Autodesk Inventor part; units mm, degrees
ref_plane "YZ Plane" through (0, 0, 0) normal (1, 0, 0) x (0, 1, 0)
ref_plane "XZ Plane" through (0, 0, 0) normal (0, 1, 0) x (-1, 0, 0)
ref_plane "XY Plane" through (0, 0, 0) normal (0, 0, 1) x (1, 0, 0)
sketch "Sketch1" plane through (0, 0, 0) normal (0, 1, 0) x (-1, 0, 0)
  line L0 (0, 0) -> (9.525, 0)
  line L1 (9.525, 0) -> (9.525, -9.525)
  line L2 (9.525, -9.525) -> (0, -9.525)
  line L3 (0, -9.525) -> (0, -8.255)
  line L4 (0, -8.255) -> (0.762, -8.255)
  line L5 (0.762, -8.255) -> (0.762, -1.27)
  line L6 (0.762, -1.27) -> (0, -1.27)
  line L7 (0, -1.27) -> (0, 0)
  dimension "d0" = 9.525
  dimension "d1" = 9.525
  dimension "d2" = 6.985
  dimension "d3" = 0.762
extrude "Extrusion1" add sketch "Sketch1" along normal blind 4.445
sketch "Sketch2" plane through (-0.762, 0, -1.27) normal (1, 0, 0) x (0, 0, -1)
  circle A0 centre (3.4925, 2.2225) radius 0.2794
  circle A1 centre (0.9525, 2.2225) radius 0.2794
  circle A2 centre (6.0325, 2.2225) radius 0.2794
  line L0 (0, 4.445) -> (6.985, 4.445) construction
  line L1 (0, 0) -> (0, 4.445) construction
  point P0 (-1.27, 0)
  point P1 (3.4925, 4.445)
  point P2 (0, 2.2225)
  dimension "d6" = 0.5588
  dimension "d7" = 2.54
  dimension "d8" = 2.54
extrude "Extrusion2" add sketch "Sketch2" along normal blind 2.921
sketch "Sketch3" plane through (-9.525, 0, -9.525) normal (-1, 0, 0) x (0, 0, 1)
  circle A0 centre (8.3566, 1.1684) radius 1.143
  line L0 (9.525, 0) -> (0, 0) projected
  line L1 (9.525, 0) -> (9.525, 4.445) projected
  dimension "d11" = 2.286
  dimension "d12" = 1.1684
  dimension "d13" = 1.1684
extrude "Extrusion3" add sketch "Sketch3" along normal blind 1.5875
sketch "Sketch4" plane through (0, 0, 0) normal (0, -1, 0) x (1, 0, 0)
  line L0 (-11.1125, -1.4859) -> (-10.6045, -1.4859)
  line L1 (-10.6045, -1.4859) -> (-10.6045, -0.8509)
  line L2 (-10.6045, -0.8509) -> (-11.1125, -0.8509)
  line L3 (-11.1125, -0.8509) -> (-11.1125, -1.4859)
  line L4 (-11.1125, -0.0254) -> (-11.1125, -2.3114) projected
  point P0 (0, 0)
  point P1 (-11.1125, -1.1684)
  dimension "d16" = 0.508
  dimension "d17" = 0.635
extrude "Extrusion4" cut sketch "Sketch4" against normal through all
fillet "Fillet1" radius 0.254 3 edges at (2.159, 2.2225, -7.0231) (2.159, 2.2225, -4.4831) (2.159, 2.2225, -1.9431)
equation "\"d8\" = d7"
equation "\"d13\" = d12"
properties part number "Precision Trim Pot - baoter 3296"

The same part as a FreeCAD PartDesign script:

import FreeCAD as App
import Part
import Sketcher
Q = App.Units.Quantity


def edges_at(feature, points):
    """Names of the edges that pass closest to the given points."""
    edges = feature.Shape.Edges
    near = lambda p: min(range(len(edges)), key=lambda i: edges[i].distToShape(Part.Vertex(*p))[0])
    return sorted({f"Edge{near(p) + 1}" for p in points})


def add_polygon(sketch, points):
    """Adds a closed chain of lines whose ends are joined by coincident constraints."""
    first, n = sketch.GeometryCount, len(points)
    for a, b in zip(points, points[1:] + points[:1]):
        sketch.addGeometry(Part.LineSegment(App.Vector(*a, 0), App.Vector(*b, 0)), False)
    for i in range(n):
        sketch.addConstraint(Sketcher.Constraint("Coincident", first + i, 2, first + (i + 1) % n, 1))

doc = App.newDocument("Part")
body = doc.addObject("PartDesign::Body", "Body")

sketch1 = doc.addObject("Sketcher::SketchObject", "Sketch")
body.addObject(sketch1)
sketch1.AttachmentSupport = (doc.XZ_Plane, [""])
sketch1.MapMode = "FlatFace"
add_polygon(sketch1, [(-9.525, 0), (0, 0), (0, -1.27), (-0.762, -1.27), (-0.762, -8.255), (0, -8.255), (0, -9.525), (-9.525, -9.525)])
sketch1.addConstraint(Sketcher.Constraint("Horizontal", 0))
sketch1.addConstraint(Sketcher.Constraint("Vertical", 1))
sketch1.addConstraint(Sketcher.Constraint("Horizontal", 2))
sketch1.addConstraint(Sketcher.Constraint("Vertical", 3))
sketch1.addConstraint(Sketcher.Constraint("Horizontal", 4))
sketch1.addConstraint(Sketcher.Constraint("Vertical", 5))
sketch1.addConstraint(Sketcher.Constraint("Horizontal", 6))
sketch1.addConstraint(Sketcher.Constraint("Vertical", 7))
sketch1.addConstraint(Sketcher.Constraint("Coincident", 0, 2, -1, 1))
sketch1.addConstraint(Sketcher.Constraint("PointOnObject", 4, 2, -2))
sketch1.addConstraint(Sketcher.Constraint("Equal", 1, 5))
sketch1.addConstraint(Sketcher.Constraint("Equal", 6, 7))
sketch1.addConstraint(Sketcher.Constraint("DistanceX", 2, 2, 2, 1, Q("0.03 in")))
sketch1.addConstraint(Sketcher.Constraint("DistanceX", 0, 1, 0, 2, Q("0.375 in")))
sketch1.addConstraint(Sketcher.Constraint("DistanceY", 3, 2, 3, 1, Q("0.275 in")))
pad1 = doc.addObject("PartDesign::Pad", "Pad")
body.addObject(pad1)
pad1.Profile = sketch1
pad1.Length = Q("0.175 in")
pad1.Reversed = True

sketch2 = doc.addObject("Sketcher::SketchObject", "Sketch001")
body.addObject(sketch2)
sketch2.AttachmentSupport = (doc.YZ_Plane, [""])
sketch2.MapMode = "FlatFace"
sketch2.AttachmentOffset = App.Placement(App.Vector(0, 0, -0.03 * 25.4), App.Rotation())
sketch2.addGeometry(Part.Circle(App.Vector(2.2225, -4.7625, 0), App.Vector(0, 0, 1), 0.2794), False)
sketch2.addGeometry(Part.Circle(App.Vector(2.2225, -2.2225, 0), App.Vector(0, 0, 1), 0.2794), False)
sketch2.addGeometry(Part.Circle(App.Vector(2.2225, -7.3025, 0), App.Vector(0, 0, 1), 0.2794), False)
sketch2.addConstraint(Sketcher.Constraint("Equal", 0, 1))
sketch2.addConstraint(Sketcher.Constraint("Equal", 1, 2))
sketch2.addConstraint(Sketcher.Constraint("Vertical", 0, 3, 1, 3))
sketch2.addConstraint(Sketcher.Constraint("Vertical", 1, 3, 2, 3))
sketch2.addConstraint(Sketcher.Constraint("Diameter", 0, Q("0.022 in")))
sketch2.addConstraint(Sketcher.Constraint("DistanceY", 0, 3, 1, 3, Q("0.1 in")))
sketch2.addConstraint(Sketcher.Constraint("DistanceY", 2, 3, 0, 3, Q("0.1 in")))
sketch2.addConstraint(Sketcher.Constraint("DistanceY", 0, 3, -1, 1, Q("0.1875 in")))
sketch2.addConstraint(Sketcher.Constraint("DistanceX", -1, 1, 0, 3, Q("0.0875 in")))
pad2 = doc.addObject("PartDesign::Pad", "Pad001")
body.addObject(pad2)
pad2.Profile = sketch2
pad2.Length = Q("0.115 in")

sketch3 = doc.addObject("Sketcher::SketchObject", "Sketch002")
body.addObject(sketch3)
sketch3.AttachmentSupport = (doc.YZ_Plane, [""])
sketch3.MapMode = "FlatFace"
sketch3.AttachmentOffset = App.Placement(App.Vector(0, 0, -0.375 * 25.4), App.Rotation())
sketch3.addGeometry(Part.Circle(App.Vector(1.1684, -1.1684, 0), App.Vector(0, 0, 1), 1.143), False)
sketch3.addConstraint(Sketcher.Constraint("Diameter", 0, Q("0.09 in")))
sketch3.addConstraint(Sketcher.Constraint("DistanceX", -1, 1, 0, 3, Q("0.046 in")))
sketch3.addConstraint(Sketcher.Constraint("DistanceY", 0, 3, -1, 1, Q("0.046 in")))
pad3 = doc.addObject("PartDesign::Pad", "Pad002")
body.addObject(pad3)
pad3.Profile = sketch3
pad3.Length = Q("0.0625 in")
pad3.Reversed = True

sketch4 = doc.addObject("Sketcher::SketchObject", "Sketch003")
body.addObject(sketch4)
sketch4.AttachmentSupport = (doc.XZ_Plane, [""])
sketch4.MapMode = "FlatFace"
add_polygon(sketch4, [(-11.1125, -0.8509), (-11.1125, -1.4859), (-10.6045, -1.4859), (-10.6045, -0.8509)])
sketch4.addConstraint(Sketcher.Constraint("Vertical", 0))
sketch4.addConstraint(Sketcher.Constraint("Horizontal", 1))
sketch4.addConstraint(Sketcher.Constraint("Vertical", 2))
sketch4.addConstraint(Sketcher.Constraint("Horizontal", 3))
sketch4.addConstraint(Sketcher.Constraint("DistanceX", 1, 1, 1, 2, Q("0.02 in")))
sketch4.addConstraint(Sketcher.Constraint("DistanceY", 0, 2, 0, 1, Q("0.025 in")))
sketch4.addConstraint(Sketcher.Constraint("DistanceX", 0, 2, -1, 1, Q("0.4375 in")))
sketch4.addConstraint(Sketcher.Constraint("DistanceY", 0, 2, -1, 1, Q("0.0585 in")))
pocket1 = doc.addObject("PartDesign::Pocket", "Pocket")
body.addObject(pocket1)
pocket1.Profile = sketch4
pocket1.Type = "ThroughAll"
doc.recompute()

fillet = doc.addObject("PartDesign::Fillet", "Fillet")
body.addObject(fillet)
fillet.Base = (pocket1, edges_at(pocket1, [(2.159, 2.223, -7.023), (2.159, 2.223, -4.483), (2.159, 2.223, -1.943)]))
fillet.Radius = Q("0.01 in")

doc.recompute()
